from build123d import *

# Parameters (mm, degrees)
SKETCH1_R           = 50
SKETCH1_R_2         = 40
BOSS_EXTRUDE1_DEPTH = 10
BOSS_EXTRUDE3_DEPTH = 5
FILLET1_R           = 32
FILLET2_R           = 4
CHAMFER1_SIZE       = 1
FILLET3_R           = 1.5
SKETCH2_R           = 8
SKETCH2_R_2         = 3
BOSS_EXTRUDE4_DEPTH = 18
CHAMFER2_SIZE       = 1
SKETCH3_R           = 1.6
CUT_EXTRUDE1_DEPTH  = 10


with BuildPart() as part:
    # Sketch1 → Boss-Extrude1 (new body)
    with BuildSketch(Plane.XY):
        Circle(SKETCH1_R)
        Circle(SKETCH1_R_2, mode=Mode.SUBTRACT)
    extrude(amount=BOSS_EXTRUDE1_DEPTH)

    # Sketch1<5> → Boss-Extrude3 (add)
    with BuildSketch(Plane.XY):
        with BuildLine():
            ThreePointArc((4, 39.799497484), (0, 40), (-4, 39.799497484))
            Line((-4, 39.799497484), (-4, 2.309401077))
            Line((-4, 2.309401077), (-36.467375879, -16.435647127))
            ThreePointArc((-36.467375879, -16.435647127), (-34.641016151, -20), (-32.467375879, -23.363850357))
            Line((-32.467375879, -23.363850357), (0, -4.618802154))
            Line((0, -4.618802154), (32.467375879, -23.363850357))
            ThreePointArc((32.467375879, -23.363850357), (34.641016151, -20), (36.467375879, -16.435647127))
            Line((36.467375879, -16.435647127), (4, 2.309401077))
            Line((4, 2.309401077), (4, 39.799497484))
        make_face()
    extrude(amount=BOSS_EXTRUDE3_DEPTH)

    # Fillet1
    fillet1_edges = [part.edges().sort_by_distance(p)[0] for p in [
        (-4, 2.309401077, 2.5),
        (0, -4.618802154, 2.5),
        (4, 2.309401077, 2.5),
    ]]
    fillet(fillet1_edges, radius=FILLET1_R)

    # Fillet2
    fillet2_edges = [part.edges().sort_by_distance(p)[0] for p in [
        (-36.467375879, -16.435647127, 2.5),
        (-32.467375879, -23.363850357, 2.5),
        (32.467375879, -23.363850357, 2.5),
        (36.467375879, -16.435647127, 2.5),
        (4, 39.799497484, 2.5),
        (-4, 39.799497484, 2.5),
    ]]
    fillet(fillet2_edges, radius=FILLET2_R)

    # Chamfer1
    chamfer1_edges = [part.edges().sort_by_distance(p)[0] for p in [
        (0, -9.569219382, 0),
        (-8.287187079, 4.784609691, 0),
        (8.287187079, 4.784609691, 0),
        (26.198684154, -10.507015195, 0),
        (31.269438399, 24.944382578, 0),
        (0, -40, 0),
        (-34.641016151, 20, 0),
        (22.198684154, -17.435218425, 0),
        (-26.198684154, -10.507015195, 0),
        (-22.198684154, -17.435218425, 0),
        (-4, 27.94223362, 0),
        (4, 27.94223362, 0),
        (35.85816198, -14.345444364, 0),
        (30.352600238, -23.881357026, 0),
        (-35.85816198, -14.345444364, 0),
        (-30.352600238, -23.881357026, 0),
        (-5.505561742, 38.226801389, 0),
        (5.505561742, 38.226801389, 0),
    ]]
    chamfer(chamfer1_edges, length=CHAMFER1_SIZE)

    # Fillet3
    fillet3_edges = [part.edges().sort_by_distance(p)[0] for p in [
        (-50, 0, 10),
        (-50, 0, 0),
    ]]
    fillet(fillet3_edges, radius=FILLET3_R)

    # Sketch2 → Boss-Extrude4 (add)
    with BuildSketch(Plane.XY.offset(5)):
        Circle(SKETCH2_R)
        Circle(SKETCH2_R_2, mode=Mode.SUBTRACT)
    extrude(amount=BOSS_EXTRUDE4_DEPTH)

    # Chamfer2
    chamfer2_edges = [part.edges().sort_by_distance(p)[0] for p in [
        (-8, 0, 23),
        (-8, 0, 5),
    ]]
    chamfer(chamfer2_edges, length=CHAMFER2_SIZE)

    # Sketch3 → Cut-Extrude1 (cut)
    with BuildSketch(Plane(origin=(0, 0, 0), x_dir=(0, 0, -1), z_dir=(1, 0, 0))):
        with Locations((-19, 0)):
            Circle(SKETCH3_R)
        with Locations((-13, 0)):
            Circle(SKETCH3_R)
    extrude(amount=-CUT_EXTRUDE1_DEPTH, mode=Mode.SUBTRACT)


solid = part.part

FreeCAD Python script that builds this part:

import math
import FreeCAD as App
import Part
import Sketcher

V = App.Vector
Q = App.Units.Quantity


def edges_at(feature, points):
    """Names of the edges that pass closest to the given points."""
    edges = feature.Shape.Edges
    near = lambda p: min(range(len(edges)), key=lambda i: edges[i].distToShape(Part.Vertex(*p))[0])
    return sorted({f"Edge{near(p) + 1}" for p in points})

doc = App.newDocument("Part")
body = doc.addObject("PartDesign::Body", "Body")

sketch1 = body.newObject("Sketcher::SketchObject", "Sketch")
sketch1.AttachmentSupport = (doc.getObject("XY_Plane"), [""])
sketch1.MapMode = "FlatFace"
sketch1.addGeometry(Part.Circle(V(0, 0, 0), V(0, 0, 1), 50), False)
sketch1.addGeometry(Part.Circle(V(0, 0, 0), V(0, 0, 1), 40), False)
sketch1.addConstraint(Sketcher.Constraint("Coincident", 0, 3, -1, 1))
sketch1.addConstraint(Sketcher.Constraint("Coincident", 1, 3, -1, 1))
sketch1.addConstraint(Sketcher.Constraint("Diameter", 0, 100.0))
sketch1.addConstraint(Sketcher.Constraint("Diameter", 1, 80.0))
pad1 = body.newObject("PartDesign::Pad", "Pad")
pad1.Profile = sketch1
pad1.Length = 10

sketch2 = body.newObject("Sketcher::SketchObject", "Sketch001")
sketch2.AttachmentSupport = (doc.getObject("XY_Plane"), [""])
sketch2.MapMode = "FlatFace"
sketch2.addGeometry(Part.ArcOfCircle(Part.Circle(V(0, 0, 0), V(0, 0, 1), 40), math.radians(84.26), math.radians(95.74)), False)
sketch2.addGeometry(Part.LineSegment(V(-4, 40, 0), V(-4, 2, 0)), False)
sketch2.addGeometry(Part.LineSegment(V(-4, 2, 0), V(-36, -16, 0)), False)
sketch2.addGeometry(Part.ArcOfCircle(Part.Circle(V(0, 0, 0), V(0, 0, 1), 40), math.radians(-155.74), math.radians(-144.26)), False)
sketch2.addGeometry(Part.LineSegment(V(-32, -23, 0), V(0, -5, 0)), False)
sketch2.addGeometry(Part.LineSegment(V(0, -5, 0), V(32, -23, 0)), False)
sketch2.addGeometry(Part.ArcOfCircle(Part.Circle(V(0, 0, 0), V(0, 0, 1), 40), math.radians(-35.74), math.radians(-24.26)), False)
sketch2.addGeometry(Part.LineSegment(V(36, -16, 0), V(4, 2, 0)), False)
sketch2.addGeometry(Part.LineSegment(V(4, 2, 0), V(4, 40, 0)), False)
sketch2.addConstraint(Sketcher.Constraint("Coincident", 0, 2, 1, 1))
sketch2.addConstraint(Sketcher.Constraint("Coincident", 1, 2, 2, 1))
sketch2.addConstraint(Sketcher.Constraint("Coincident", 2, 2, 3, 1))
sketch2.addConstraint(Sketcher.Constraint("Coincident", 3, 2, 4, 1))
sketch2.addConstraint(Sketcher.Constraint("Coincident", 4, 2, 5, 1))
sketch2.addConstraint(Sketcher.Constraint("Coincident", 5, 2, 6, 1))
sketch2.addConstraint(Sketcher.Constraint("Coincident", 6, 2, 7, 1))
sketch2.addConstraint(Sketcher.Constraint("Coincident", 7, 2, 8, 1))
sketch2.addConstraint(Sketcher.Constraint("Coincident", 8, 2, 0, 1))
sketch2.addConstraint(Sketcher.Constraint("Vertical", 1))
sketch2.addConstraint(Sketcher.Constraint("Vertical", 8))
sketch2.addConstraint(Sketcher.Constraint("Coincident", 0, 3, -1, 1))
sketch2.addConstraint(Sketcher.Constraint("Coincident", 3, 3, -1, 1))
sketch2.addConstraint(Sketcher.Constraint("Coincident", 6, 3, -1, 1))
sketch2.addConstraint(Sketcher.Constraint("Equal", 0, 3))
sketch2.addConstraint(Sketcher.Constraint("Equal", 3, 6))
sketch2.addConstraint(Sketcher.Constraint("Symmetric", 1, 2, 7, 2, -2))
sketch2.addConstraint(Sketcher.Constraint("PointOnObject", 4, 2, -2))
sketch2.addConstraint(Sketcher.Constraint("Parallel", 2, 4))
sketch2.addConstraint(Sketcher.Constraint("Parallel", 5, 7))
sketch2.addConstraint(Sketcher.Constraint("Horizontal", 3, 2, 5, 2))
sketch2.addConstraint(Sketcher.Constraint("Equal", 2, 4))
sketch2.addConstraint(Sketcher.Constraint("Radius", 0, 40.0))
sketch2.addConstraint(Sketcher.Constraint("Angle", 2, Q("-150 deg")))
sketch2.addConstraint(Sketcher.Constraint("DistanceX", 0, 2, -1, 1, 4.0))
sketch2.addConstraint(Sketcher.Constraint("DistanceY", -1, 1, 1, 2, 2.309401))
pad2 = body.newObject("PartDesign::Pad", "Pad001")
pad2.Profile = sketch2
pad2.Length = 5
doc.recompute()

fillet = body.newObject("PartDesign::Fillet", "Fillet")
fillet.Base = (pad2, edges_at(pad2, [(-4, 2.309, 2.5), (0, -4.619, 2.5), (4, 2.309, 2.5)]))
fillet.Radius = 32
doc.recompute()

fillet2 = body.newObject("PartDesign::Fillet", "Fillet001")
fillet2.Base = (fillet, edges_at(fillet, [
    (-36.467, -16.436, 2.5),
    (-32.467, -23.364, 2.5),
    (32.467, -23.364, 2.5),
    (36.467, -16.436, 2.5),
    (4, 39.799, 2.5),
    (-4, 39.799, 2.5),
]))
fillet2.Radius = 4
doc.recompute()

chamfer = body.newObject("PartDesign::Chamfer", "Chamfer")
chamfer.Base = (fillet2, edges_at(fillet2, [
    (0, -9.569, 0),
    (-8.287, 4.785, 0),
    (8.287, 4.785, 0),
    (26.199, -10.507, 0),
    (31.269, 24.944, 0),
    (0, -40, 0),
    (-34.641, 20, 0),
    (22.199, -17.435, 0),
    (-26.199, -10.507, 0),
    (-22.199, -17.435, 0),
    (-4, 27.942, 0),
    (4, 27.942, 0),
    (35.858, -14.345, 0),
    (30.353, -23.881, 0),
    (-35.858, -14.345, 0),
    (-30.353, -23.881, 0),
    (-5.506, 38.227, 0),
    (5.506, 38.227, 0),
]))
chamfer.Size = 1
doc.recompute()

fillet3 = body.newObject("PartDesign::Fillet", "Fillet002")
fillet3.Base = (chamfer, edges_at(chamfer, [(-50, 0, 10), (-50, 0, 0)]))
fillet3.Radius = 1.5

sketch3 = body.newObject("Sketcher::SketchObject", "Sketch002")
sketch3.AttachmentSupport = (doc.getObject("XY_Plane"), [""])
sketch3.MapMode = "FlatFace"
sketch3.AttachmentOffset = App.Placement(V(0, 0, 5), App.Rotation())
sketch3.addGeometry(Part.Circle(V(0, 0, 0), V(0, 0, 1), 8), False)
sketch3.addGeometry(Part.Circle(V(0, 0, 0), V(0, 0, 1), 3), False)
sketch3.addConstraint(Sketcher.Constraint("Coincident", 0, 3, -1, 1))
sketch3.addConstraint(Sketcher.Constraint("Coincident", 1, 3, -1, 1))
sketch3.addConstraint(Sketcher.Constraint("Diameter", 0, 16.0))
sketch3.addConstraint(Sketcher.Constraint("Diameter", 1, 6.0))
pad3 = body.newObject("PartDesign::Pad", "Pad002")
pad3.Profile = sketch3
pad3.Length = 18
doc.recompute()

chamfer2 = body.newObject("PartDesign::Chamfer", "Chamfer001")
chamfer2.Base = (pad3, edges_at(pad3, [(-8, 0, 23), (-8, 0, 5)]))
chamfer2.Size = 1

sketch4 = body.newObject("Sketcher::SketchObject", "Sketch003")
sketch4.AttachmentSupport = (doc.getObject("YZ_Plane"), [""])
sketch4.MapMode = "FlatFace"
sketch4.addGeometry(Part.Circle(V(0, 19, 0), V(0, 0, 1), 1.6), False)
sketch4.addGeometry(Part.Circle(V(0, 13, 0), V(0, 0, 1), 1.6), False)
sketch4.addConstraint(Sketcher.Constraint("Equal", 0, 1))
sketch4.addConstraint(Sketcher.Constraint("PointOnObject", 0, 3, -2))
sketch4.addConstraint(Sketcher.Constraint("PointOnObject", 1, 3, -2))
sketch4.addConstraint(Sketcher.Constraint("Diameter", 0, 3.2))
sketch4.addConstraint(Sketcher.Constraint("DistanceY", -1, 1, 0, 3, 19.0))
sketch4.addConstraint(Sketcher.Constraint("DistanceY", -1, 1, 1, 3, 13.0))
pocket1 = body.newObject("PartDesign::Pocket", "Pocket")
pocket1.Profile = sketch4
pocket1.Length = 10

doc.recompute()
